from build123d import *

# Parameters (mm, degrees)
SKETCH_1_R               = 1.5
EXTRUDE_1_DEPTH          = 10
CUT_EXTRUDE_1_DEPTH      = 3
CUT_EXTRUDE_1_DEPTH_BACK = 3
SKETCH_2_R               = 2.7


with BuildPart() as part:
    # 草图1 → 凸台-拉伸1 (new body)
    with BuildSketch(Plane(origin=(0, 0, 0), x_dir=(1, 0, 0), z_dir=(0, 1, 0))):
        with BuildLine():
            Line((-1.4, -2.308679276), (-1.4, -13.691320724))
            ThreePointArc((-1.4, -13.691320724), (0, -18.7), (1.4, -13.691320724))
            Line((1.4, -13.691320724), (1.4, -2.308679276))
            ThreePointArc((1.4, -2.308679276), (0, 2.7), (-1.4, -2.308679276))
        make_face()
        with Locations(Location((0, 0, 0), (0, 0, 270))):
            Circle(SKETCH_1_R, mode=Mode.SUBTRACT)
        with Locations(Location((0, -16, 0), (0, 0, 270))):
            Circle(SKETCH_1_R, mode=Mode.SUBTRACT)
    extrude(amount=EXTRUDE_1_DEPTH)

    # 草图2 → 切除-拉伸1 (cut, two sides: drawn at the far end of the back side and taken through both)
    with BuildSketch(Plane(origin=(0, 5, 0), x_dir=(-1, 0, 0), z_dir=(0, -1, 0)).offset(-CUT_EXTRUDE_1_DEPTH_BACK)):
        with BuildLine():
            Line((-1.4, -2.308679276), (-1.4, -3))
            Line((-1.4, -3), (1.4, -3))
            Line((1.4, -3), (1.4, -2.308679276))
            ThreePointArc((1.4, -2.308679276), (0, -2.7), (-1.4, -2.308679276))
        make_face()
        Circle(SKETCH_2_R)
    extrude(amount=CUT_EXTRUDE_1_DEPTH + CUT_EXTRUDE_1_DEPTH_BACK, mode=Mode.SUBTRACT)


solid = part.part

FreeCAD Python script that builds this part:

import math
import FreeCAD as App
import Part
import Sketcher
from FreeCAD import Vector

doc = App.newDocument("Part")
body = doc.addObject("PartDesign::Body", "Body")

# Sketch on XZ plane
sketch1 = body.newObject("Sketcher::SketchObject", "Sketch")
sketch1.AttachmentSupport = (doc.getObject("XZ_Plane"), [""])
sketch1.MapMode = "FlatFace"
sketch1.addGeometry(Part.LineSegment(Vector(-1.4, 2.308679, 0), Vector(-1.4, 13.691321, 0)), False)
sketch1.addGeometry(Part.ArcOfCircle(Part.Circle(Vector(0, 16, 0), Vector(0, 0, 1), 2.7), math.radians(-58.767071), math.radians(238.767071)), False)
sketch1.addGeometry(Part.LineSegment(Vector(1.4, 13.691321, 0), Vector(1.4, 2.308679, 0)), False)
sketch1.addGeometry(Part.ArcOfCircle(Part.Circle(Vector(0, 0, 0), Vector(0, 0, 1), 2.7), math.radians(121.232929), math.radians(418.767071)), False)
sketch1.addGeometry(Part.Circle(Vector(0, 16, 0), Vector(0, 0, 1), 1.5), False)
sketch1.addGeometry(Part.Circle(Vector(0, 0, 0), Vector(0, 0, 1), 1.5), False)
sketch1.addConstraint(Sketcher.Constraint("Coincident", 0, 2, 1, 2))
sketch1.addConstraint(Sketcher.Constraint("Coincident", 1, 1, 2, 1))
sketch1.addConstraint(Sketcher.Constraint("Coincident", 2, 2, 3, 2))
sketch1.addConstraint(Sketcher.Constraint("Coincident", 3, 1, 0, 1))
sketch1.addConstraint(Sketcher.Constraint("Vertical", 0))
sketch1.addConstraint(Sketcher.Constraint("Vertical", 2))
sketch1.addConstraint(Sketcher.Constraint("Coincident", 3, 3, -1, 1))
sketch1.addConstraint(Sketcher.Constraint("Coincident", 5, 3, -1, 1))
sketch1.addConstraint(Sketcher.Constraint("Coincident", 4, 3, 1, 3))
sketch1.addConstraint(Sketcher.Constraint("Equal", 1, 3))
sketch1.addConstraint(Sketcher.Constraint("Equal", 4, 5))
sketch1.addConstraint(Sketcher.Constraint("Symmetric", 0, 2, 1, 1, -2))
sketch1.addConstraint(Sketcher.Constraint("Diameter", 4, 3.0))
sketch1.addConstraint(Sketcher.Constraint("Radius", 1, 2.7))
sketch1.addConstraint(Sketcher.Constraint("DistanceY", -1, 1, 1, 3, 16.0))
sketch1.addConstraint(Sketcher.Constraint("DistanceX", 0, 2, -1, 1, 1.4))
pad1 = body.newObject("PartDesign::Pad", "Pad")
pad1.Profile = sketch1
pad1.Length = 10
pad1.Reversed = True

# Sketch on XZ plane
sketch2 = body.newObject("Sketcher::SketchObject", "Sketch001")
sketch2.AttachmentSupport = (doc.getObject("XZ_Plane"), [""])
sketch2.MapMode = "FlatFace"
sketch2.AttachmentOffset = App.Placement(Vector(0, 0, -5), App.Rotation())
sketch2.addGeometry(Part.LineSegment(Vector(1.4, 2.308679, 0), Vector(1.4, 3, 0)), False)
sketch2.addGeometry(Part.LineSegment(Vector(1.4, 3, 0), Vector(-1.4, 3, 0)), False)
sketch2.addGeometry(Part.LineSegment(Vector(-1.4, 3, 0), Vector(-1.4, 2.308679, 0)), False)
sketch2.addGeometry(Part.ArcOfCircle(Part.Circle(Vector(0, 0, 0), Vector(0, 0, 1), 2.7), math.radians(121.232929), math.radians(418.767071)), False)
sketch2.addConstraint(Sketcher.Constraint("Coincident", 0, 2, 1, 1))
sketch2.addConstraint(Sketcher.Constraint("Coincident", 1, 2, 2, 1))
sketch2.addConstraint(Sketcher.Constraint("Coincident", 2, 2, 3, 1))
sketch2.addConstraint(Sketcher.Constraint("Coincident", 3, 2, 0, 1))
sketch2.addConstraint(Sketcher.Constraint("Vertical", 0))
sketch2.addConstraint(Sketcher.Constraint("Horizontal", 1))
sketch2.addConstraint(Sketcher.Constraint("Vertical", 2))
sketch2.addConstraint(Sketcher.Constraint("Coincident", 3, 3, -1, 1))
sketch2.addConstraint(Sketcher.Constraint("Horizontal", 2, 2, 3, 2))
sketch2.addConstraint(Sketcher.Constraint("Radius", 3, 2.7))
sketch2.addConstraint(Sketcher.Constraint("DistanceX", 1, 2, 1, 1, 2.8))
sketch2.addConstraint(Sketcher.Constraint("DistanceY", -1, 1, 0, 2, 3.0))
pocket1 = body.newObject("PartDesign::Pocket", "Pocket")
pocket1.Profile = sketch2
pocket1.Type = "TwoLengths"
pocket1.Length = 3
pocket1.Length2 = 3
pocket1.Reversed = True

doc.recompute()
